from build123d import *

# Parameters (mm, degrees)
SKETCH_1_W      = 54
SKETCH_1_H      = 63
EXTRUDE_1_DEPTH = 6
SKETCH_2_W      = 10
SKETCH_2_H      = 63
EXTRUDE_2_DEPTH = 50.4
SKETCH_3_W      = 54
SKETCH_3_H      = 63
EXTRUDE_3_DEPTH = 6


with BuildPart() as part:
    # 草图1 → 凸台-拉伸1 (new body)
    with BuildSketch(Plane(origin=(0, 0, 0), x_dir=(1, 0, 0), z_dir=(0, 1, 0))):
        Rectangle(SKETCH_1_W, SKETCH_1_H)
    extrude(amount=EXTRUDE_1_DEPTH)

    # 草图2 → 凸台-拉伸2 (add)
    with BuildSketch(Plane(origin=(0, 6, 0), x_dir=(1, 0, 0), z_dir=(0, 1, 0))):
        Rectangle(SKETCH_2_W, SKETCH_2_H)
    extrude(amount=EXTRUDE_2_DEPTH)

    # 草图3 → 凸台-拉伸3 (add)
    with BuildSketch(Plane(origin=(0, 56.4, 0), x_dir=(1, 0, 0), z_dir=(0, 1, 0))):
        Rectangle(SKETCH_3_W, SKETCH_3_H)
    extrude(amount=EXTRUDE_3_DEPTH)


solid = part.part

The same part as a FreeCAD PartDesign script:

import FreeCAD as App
import Part
import Sketcher
from FreeCAD import Vector

doc = App.newDocument("Part")
body = doc.addObject("PartDesign::Body", "Body")

# Sketch on XZ plane
sketch1 = body.newObject("Sketcher::SketchObject", "Sketch")
sketch1.AttachmentSupport = (doc.getObject("XZ_Plane"), [""])
sketch1.MapMode = "FlatFace"
sketch1.addGeometry([
    Part.LineSegment(Vector(-27, -32, 0), Vector(-27, 32, 0)),
    Part.LineSegment(Vector(-27, 32, 0), Vector(27, 32, 0)),
    Part.LineSegment(Vector(27, 32, 0), Vector(27, -32, 0)),
    Part.LineSegment(Vector(27, -32, 0), Vector(-27, -32, 0)),
], False)
sketch1.addConstraint([
    Sketcher.Constraint("Coincident", 0, 2, 1, 1),
    Sketcher.Constraint("Coincident", 1, 2, 2, 1),
    Sketcher.Constraint("Coincident", 2, 2, 3, 1),
    Sketcher.Constraint("Coincident", 3, 2, 0, 1),
    Sketcher.Constraint("Vertical", 0),
    Sketcher.Constraint("Horizontal", 1),
    Sketcher.Constraint("Vertical", 2),
    Sketcher.Constraint("Horizontal", 3),
    Sketcher.Constraint("Symmetric", 0, 2, 2, 2, -1, 1),
    Sketcher.Constraint("DistanceX", 1, 1, 1, 2, 54.0),
    Sketcher.Constraint("DistanceY", 0, 1, 0, 2, 63.0),
])
pad1 = body.newObject("PartDesign::Pad", "Pad")
pad1.Profile = sketch1
pad1.Length = 6
pad1.Reversed = True

# Sketch on XZ plane
sketch2 = body.newObject("Sketcher::SketchObject", "Sketch001")
sketch2.AttachmentSupport = (doc.getObject("XZ_Plane"), [""])
sketch2.MapMode = "FlatFace"
sketch2.AttachmentOffset = App.Placement(Vector(0, 0, -6), App.Rotation())
sketch2.addGeometry([
    Part.LineSegment(Vector(-5, -32, 0), Vector(-5, 32, 0)),
    Part.LineSegment(Vector(-5, 32, 0), Vector(5, 32, 0)),
    Part.LineSegment(Vector(5, 32, 0), Vector(5, -32, 0)),
    Part.LineSegment(Vector(5, -32, 0), Vector(-5, -32, 0)),
], False)
sketch2.addConstraint([
    Sketcher.Constraint("Coincident", 0, 2, 1, 1),
    Sketcher.Constraint("Coincident", 1, 2, 2, 1),
    Sketcher.Constraint("Coincident", 2, 2, 3, 1),
    Sketcher.Constraint("Coincident", 3, 2, 0, 1),
    Sketcher.Constraint("Vertical", 0),
    Sketcher.Constraint("Horizontal", 1),
    Sketcher.Constraint("Vertical", 2),
    Sketcher.Constraint("Horizontal", 3),
    Sketcher.Constraint("Symmetric", 0, 2, 2, 2, -1, 1),
    Sketcher.Constraint("DistanceX", 1, 1, 1, 2, 10.0),
    Sketcher.Constraint("DistanceY", 0, 1, 0, 2, 63.0),
])
pad2 = body.newObject("PartDesign::Pad", "Pad001")
pad2.Profile = sketch2
pad2.Length = 50.4
pad2.Reversed = True

# Sketch on XZ plane
sketch3 = body.newObject("Sketcher::SketchObject", "Sketch002")
sketch3.AttachmentSupport = (doc.getObject("XZ_Plane"), [""])
sketch3.MapMode = "FlatFace"
sketch3.AttachmentOffset = App.Placement(Vector(0, 0, -56.4), App.Rotation())
sketch3.addGeometry([
    Part.LineSegment(Vector(-27, -32, 0), Vector(-27, 32, 0)),
    Part.LineSegment(Vector(-27, 32, 0), Vector(27, 32, 0)),
    Part.LineSegment(Vector(27, 32, 0), Vector(27, -32, 0)),
    Part.LineSegment(Vector(27, -32, 0), Vector(-27, -32, 0)),
], False)
sketch3.addConstraint([
    Sketcher.Constraint("Coincident", 0, 2, 1, 1),
    Sketcher.Constraint("Coincident", 1, 2, 2, 1),
    Sketcher.Constraint("Coincident", 2, 2, 3, 1),
    Sketcher.Constraint("Coincident", 3, 2, 0, 1),
    Sketcher.Constraint("Vertical", 0),
    Sketcher.Constraint("Horizontal", 1),
    Sketcher.Constraint("Vertical", 2),
    Sketcher.Constraint("Horizontal", 3),
    Sketcher.Constraint("Symmetric", 0, 2, 2, 2, -1, 1),
    Sketcher.Constraint("DistanceX", 1, 1, 1, 2, 54.0),
    Sketcher.Constraint("DistanceY", 0, 1, 0, 2, 63.0),
])
pad3 = body.newObject("PartDesign::Pad", "Pad002")
pad3.Profile = sketch3
pad3.Length = 6
pad3.Reversed = True

doc.recompute()
